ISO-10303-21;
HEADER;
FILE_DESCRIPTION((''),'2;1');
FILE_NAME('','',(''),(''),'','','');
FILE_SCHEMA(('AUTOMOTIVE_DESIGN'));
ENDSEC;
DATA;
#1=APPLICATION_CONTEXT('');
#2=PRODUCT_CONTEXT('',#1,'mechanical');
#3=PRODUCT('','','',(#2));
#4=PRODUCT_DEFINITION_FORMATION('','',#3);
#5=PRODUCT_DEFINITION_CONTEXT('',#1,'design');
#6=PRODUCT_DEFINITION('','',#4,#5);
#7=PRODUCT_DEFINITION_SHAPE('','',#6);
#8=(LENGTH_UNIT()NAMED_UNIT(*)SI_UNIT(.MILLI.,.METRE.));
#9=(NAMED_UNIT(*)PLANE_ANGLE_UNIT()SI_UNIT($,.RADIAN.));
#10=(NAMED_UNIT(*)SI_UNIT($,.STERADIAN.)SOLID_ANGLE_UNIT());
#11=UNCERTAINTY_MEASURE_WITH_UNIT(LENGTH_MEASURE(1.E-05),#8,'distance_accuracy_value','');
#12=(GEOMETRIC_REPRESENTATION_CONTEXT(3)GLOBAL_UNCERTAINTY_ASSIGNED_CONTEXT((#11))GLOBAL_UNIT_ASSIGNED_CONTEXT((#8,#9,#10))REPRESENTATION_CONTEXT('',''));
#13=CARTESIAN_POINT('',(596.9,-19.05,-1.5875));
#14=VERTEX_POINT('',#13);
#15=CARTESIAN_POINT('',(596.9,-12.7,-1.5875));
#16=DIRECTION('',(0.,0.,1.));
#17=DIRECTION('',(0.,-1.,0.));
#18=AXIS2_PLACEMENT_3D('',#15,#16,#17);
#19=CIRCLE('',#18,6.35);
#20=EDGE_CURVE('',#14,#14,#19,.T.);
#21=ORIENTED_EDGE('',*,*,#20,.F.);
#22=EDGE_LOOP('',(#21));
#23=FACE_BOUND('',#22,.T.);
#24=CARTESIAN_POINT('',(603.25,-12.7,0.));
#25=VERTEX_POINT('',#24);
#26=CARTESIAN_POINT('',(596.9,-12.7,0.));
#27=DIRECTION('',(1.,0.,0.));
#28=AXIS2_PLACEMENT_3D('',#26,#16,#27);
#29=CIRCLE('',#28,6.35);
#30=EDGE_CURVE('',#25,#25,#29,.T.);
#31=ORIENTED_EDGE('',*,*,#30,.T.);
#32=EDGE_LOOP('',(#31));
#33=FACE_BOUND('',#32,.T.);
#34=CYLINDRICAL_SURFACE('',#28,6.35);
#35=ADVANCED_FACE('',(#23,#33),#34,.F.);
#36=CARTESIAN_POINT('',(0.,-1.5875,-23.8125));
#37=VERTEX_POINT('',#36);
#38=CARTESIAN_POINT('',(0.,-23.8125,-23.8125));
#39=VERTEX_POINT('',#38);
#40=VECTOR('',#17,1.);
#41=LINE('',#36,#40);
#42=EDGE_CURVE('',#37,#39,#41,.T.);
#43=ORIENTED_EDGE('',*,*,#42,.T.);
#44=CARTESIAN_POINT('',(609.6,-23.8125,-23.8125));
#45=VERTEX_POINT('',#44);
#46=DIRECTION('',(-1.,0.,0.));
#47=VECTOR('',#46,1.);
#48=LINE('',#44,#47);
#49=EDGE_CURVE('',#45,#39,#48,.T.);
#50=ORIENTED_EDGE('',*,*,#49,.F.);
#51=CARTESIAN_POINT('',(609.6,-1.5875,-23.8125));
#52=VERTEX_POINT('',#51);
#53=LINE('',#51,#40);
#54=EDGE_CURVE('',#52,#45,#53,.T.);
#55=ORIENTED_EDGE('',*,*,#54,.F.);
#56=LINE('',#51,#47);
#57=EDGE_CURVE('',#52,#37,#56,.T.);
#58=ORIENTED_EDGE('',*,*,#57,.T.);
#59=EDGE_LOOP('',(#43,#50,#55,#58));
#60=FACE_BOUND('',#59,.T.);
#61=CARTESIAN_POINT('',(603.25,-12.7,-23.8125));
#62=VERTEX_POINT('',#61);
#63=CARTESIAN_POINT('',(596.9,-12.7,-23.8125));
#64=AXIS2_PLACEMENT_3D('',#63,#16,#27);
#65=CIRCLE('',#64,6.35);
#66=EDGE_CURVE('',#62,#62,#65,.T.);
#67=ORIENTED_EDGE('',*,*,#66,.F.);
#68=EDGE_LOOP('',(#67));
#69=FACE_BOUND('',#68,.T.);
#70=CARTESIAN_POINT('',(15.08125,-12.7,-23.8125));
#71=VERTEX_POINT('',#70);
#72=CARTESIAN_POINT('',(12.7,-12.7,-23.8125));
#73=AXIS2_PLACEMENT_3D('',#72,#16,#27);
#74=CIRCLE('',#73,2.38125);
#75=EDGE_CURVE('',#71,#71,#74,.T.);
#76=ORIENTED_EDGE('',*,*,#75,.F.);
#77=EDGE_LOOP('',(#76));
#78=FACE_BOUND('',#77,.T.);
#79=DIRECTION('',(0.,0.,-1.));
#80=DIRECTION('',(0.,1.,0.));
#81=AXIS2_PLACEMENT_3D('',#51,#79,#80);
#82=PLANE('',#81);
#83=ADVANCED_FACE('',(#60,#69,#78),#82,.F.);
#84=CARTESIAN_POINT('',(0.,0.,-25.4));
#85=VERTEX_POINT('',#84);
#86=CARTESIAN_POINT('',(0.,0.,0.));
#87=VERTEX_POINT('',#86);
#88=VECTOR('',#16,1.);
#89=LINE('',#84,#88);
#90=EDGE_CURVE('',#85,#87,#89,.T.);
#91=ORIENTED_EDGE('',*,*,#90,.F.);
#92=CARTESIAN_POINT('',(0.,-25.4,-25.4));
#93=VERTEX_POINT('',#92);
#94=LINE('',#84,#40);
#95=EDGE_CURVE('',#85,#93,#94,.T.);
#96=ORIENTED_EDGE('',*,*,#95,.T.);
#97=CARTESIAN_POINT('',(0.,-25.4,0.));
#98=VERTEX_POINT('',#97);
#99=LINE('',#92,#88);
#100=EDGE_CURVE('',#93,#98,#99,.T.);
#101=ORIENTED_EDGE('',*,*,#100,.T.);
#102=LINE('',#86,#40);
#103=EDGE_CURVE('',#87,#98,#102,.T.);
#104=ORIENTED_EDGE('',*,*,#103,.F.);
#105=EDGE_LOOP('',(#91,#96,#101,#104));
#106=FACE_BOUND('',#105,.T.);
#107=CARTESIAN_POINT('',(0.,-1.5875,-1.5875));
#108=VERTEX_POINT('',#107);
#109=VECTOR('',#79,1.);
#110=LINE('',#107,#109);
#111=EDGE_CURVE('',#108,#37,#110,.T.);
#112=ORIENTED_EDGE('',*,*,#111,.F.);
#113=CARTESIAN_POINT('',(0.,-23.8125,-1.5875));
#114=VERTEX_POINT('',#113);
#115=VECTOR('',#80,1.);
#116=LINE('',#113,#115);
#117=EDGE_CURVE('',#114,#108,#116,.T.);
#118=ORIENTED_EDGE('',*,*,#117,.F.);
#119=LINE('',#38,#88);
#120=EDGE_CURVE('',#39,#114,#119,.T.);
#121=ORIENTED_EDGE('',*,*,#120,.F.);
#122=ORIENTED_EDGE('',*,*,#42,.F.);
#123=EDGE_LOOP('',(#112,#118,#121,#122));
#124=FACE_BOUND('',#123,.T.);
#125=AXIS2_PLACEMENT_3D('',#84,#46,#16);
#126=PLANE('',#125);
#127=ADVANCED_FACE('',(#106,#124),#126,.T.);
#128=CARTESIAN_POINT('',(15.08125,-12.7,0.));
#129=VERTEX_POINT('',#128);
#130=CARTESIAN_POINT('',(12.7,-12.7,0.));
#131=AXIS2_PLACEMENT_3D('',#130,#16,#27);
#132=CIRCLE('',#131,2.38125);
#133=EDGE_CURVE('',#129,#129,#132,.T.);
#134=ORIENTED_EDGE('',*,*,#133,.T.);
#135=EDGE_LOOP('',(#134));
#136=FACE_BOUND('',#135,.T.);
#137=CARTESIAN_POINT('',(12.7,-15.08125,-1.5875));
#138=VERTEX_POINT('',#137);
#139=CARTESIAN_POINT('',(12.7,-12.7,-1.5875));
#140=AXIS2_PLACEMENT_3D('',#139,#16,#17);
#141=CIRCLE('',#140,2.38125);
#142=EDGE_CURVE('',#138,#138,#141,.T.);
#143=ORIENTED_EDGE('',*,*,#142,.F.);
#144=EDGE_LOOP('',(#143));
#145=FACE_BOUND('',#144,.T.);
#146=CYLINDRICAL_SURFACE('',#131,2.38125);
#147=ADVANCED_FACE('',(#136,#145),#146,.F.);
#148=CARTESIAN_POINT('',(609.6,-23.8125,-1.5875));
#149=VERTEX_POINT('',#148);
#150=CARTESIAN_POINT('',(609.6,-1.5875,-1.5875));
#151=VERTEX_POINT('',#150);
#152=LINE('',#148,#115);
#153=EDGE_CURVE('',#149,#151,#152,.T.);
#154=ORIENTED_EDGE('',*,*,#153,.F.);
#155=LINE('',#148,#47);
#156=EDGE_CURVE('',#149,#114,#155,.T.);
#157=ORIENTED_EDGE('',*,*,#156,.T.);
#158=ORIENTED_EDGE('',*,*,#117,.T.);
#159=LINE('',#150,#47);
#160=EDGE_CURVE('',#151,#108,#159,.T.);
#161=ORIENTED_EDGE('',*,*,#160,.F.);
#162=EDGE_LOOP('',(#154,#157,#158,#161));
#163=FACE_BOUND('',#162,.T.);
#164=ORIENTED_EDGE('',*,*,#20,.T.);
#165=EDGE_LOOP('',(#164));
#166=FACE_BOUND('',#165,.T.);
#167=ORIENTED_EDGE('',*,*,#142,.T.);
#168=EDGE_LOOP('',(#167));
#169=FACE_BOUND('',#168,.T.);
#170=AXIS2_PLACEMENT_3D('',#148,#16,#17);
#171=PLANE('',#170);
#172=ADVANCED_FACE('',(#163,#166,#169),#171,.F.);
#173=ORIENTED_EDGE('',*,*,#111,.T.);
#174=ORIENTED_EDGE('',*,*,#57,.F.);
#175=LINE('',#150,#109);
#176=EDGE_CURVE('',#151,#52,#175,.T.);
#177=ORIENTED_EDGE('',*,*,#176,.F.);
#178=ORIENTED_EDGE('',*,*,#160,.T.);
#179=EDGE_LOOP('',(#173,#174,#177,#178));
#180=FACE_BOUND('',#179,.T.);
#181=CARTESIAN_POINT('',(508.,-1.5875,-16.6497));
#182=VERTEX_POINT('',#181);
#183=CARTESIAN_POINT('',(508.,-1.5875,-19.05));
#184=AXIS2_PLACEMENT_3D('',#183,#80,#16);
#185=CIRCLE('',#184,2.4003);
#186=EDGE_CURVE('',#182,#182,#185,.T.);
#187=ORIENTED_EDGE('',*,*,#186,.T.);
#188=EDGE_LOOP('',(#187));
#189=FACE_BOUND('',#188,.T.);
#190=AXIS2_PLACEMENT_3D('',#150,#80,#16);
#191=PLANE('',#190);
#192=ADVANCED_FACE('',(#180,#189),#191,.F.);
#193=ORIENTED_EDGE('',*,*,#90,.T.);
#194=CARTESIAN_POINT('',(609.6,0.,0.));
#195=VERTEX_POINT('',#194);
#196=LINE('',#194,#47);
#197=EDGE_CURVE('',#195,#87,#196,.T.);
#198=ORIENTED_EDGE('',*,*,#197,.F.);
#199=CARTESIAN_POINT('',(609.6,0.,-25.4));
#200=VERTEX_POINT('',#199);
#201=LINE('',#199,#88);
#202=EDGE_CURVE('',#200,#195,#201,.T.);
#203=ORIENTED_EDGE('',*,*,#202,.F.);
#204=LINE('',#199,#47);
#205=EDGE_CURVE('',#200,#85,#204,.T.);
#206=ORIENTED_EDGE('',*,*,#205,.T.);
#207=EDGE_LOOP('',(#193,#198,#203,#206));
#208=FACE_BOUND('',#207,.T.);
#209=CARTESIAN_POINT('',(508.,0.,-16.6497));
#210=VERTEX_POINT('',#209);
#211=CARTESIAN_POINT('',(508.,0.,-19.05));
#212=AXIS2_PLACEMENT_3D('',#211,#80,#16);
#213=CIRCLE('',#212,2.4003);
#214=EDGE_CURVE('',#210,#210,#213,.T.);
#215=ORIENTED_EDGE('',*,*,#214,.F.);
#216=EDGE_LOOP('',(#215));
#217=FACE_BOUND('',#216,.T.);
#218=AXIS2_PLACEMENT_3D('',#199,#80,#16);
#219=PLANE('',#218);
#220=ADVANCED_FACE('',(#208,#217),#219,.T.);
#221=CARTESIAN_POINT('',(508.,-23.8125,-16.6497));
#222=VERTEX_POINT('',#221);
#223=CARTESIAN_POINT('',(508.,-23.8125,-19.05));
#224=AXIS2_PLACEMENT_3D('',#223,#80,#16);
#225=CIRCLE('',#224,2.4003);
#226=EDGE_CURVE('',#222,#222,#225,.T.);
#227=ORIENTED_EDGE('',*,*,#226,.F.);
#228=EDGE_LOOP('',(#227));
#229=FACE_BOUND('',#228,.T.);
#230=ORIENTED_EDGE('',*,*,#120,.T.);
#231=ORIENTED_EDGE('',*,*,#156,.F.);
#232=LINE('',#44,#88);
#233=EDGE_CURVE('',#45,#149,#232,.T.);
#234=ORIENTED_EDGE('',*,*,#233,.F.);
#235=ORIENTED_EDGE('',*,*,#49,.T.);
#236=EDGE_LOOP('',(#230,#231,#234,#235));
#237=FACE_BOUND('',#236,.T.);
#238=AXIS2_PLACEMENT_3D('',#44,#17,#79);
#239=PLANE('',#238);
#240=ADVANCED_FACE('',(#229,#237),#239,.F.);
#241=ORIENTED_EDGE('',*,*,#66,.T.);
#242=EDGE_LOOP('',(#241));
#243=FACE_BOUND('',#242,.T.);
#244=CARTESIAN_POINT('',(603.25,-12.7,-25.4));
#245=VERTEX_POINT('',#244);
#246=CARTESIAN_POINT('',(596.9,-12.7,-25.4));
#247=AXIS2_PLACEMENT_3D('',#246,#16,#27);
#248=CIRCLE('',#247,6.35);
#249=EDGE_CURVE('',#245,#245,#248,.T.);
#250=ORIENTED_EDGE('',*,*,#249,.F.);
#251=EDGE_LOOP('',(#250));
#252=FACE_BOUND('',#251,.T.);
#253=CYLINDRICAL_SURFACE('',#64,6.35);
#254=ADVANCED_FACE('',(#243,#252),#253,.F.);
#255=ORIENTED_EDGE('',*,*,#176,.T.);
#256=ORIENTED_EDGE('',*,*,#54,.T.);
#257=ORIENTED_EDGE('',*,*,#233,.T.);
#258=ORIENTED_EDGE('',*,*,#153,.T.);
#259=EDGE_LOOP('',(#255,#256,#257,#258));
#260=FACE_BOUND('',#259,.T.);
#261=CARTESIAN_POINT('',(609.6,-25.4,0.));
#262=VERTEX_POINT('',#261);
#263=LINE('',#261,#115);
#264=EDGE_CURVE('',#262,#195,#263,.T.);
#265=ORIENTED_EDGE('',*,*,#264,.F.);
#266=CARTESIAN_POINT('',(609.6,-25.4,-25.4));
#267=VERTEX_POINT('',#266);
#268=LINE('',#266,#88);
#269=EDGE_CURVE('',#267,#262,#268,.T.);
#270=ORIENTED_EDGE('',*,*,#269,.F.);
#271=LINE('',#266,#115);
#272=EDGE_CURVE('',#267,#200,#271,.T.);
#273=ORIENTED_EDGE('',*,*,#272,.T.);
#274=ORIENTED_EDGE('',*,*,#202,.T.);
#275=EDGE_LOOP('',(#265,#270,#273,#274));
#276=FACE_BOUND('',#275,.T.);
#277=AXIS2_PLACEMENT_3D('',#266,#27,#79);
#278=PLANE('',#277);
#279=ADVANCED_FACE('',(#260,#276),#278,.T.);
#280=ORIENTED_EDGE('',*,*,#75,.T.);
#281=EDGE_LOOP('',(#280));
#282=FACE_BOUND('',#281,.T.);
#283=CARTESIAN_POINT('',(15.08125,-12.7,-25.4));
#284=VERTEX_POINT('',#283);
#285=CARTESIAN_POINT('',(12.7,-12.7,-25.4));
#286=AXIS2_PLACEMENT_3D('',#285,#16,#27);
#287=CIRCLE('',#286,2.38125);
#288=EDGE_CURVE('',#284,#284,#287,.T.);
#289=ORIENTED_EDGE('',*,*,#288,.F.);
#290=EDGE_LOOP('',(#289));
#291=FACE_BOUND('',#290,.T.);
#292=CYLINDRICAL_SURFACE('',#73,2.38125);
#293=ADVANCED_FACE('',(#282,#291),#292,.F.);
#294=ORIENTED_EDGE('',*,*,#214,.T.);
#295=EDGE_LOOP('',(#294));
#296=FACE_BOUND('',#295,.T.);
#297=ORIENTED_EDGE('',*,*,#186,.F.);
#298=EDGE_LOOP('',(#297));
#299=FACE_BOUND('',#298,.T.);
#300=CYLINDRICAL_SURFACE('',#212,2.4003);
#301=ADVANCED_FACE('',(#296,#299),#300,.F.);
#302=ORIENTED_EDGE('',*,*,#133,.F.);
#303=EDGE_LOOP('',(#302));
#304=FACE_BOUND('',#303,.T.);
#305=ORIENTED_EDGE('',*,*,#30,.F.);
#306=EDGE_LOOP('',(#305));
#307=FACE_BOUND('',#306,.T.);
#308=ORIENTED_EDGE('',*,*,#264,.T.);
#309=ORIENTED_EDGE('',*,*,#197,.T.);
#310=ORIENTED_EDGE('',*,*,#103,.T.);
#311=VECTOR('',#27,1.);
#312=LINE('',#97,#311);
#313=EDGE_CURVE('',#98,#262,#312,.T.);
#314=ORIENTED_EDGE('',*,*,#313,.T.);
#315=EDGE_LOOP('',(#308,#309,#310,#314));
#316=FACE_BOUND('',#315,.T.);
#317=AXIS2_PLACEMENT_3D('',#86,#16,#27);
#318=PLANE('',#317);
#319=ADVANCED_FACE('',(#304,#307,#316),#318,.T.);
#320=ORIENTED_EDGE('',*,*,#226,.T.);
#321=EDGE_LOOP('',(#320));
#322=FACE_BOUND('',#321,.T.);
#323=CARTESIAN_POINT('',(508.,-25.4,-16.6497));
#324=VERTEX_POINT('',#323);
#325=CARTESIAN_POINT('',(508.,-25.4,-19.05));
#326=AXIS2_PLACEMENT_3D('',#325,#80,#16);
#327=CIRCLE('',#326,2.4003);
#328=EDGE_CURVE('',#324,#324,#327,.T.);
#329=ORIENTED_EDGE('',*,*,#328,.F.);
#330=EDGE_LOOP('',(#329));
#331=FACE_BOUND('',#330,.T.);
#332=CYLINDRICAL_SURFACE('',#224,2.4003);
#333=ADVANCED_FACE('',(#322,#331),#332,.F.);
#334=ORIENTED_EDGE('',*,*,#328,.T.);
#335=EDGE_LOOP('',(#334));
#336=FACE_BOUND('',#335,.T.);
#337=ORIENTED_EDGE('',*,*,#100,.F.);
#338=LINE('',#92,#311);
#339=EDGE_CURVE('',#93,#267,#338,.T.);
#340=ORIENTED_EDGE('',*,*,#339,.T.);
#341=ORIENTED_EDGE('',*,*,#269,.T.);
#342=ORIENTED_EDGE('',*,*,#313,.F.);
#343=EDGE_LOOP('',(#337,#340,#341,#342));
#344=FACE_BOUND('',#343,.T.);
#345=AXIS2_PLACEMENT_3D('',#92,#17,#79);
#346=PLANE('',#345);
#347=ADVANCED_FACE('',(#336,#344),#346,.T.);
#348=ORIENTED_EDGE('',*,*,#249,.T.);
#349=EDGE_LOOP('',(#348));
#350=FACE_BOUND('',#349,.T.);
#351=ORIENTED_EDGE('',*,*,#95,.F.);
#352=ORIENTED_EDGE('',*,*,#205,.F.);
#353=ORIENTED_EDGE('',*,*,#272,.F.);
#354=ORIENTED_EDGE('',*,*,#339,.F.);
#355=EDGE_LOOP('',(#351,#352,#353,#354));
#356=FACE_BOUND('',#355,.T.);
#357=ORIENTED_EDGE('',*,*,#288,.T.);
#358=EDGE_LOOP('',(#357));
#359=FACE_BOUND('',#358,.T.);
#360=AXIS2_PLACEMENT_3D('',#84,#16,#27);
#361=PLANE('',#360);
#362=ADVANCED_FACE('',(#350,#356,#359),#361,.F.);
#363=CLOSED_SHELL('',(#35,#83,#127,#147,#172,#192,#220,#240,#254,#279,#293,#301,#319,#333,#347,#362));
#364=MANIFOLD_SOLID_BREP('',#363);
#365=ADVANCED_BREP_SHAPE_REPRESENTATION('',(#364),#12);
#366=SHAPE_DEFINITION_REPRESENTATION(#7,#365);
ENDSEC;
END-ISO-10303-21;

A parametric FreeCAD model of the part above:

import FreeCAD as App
import Part
import Sketcher

V = App.Vector
Q = App.Units.Quantity

doc = App.newDocument("Part")
body = doc.addObject("PartDesign::Body", "Body")

# Sketch on XY plane
sketch1 = body.newObject("Sketcher::SketchObject", "Sketch")
sketch1.AttachmentSupport = (doc.getObject("XY_Plane"), [""])
sketch1.MapMode = "FlatFace"
sketch1.addGeometry(Part.LineSegment(V(0, 0, 0), V(0, -25.4, 0)), False)
sketch1.addGeometry(Part.LineSegment(V(0, -25.4, 0), V(609.6, -25.4, 0)), False)
sketch1.addGeometry(Part.LineSegment(V(609.6, -25.4, 0), V(609.6, 0, 0)), False)
sketch1.addGeometry(Part.LineSegment(V(609.6, 0, 0), V(0, 0, 0)), False)
sketch1.addConstraint(Sketcher.Constraint("Coincident", 0, 2, 1, 1))
sketch1.addConstraint(Sketcher.Constraint("Coincident", 1, 2, 2, 1))
sketch1.addConstraint(Sketcher.Constraint("Coincident", 2, 2, 3, 1))
sketch1.addConstraint(Sketcher.Constraint("Coincident", 3, 2, 0, 1))
sketch1.addConstraint(Sketcher.Constraint("Vertical", 0))
sketch1.addConstraint(Sketcher.Constraint("Horizontal", 1))
sketch1.addConstraint(Sketcher.Constraint("Vertical", 2))
sketch1.addConstraint(Sketcher.Constraint("Horizontal", 3))
sketch1.addConstraint(Sketcher.Constraint("Coincident", 3, 2, -1, 1))
sketch1.addConstraint(Sketcher.Constraint("DistanceX", 1, 1, 1, 2, Q("24 in")))
sketch1.addConstraint(Sketcher.Constraint("DistanceY", 0, 2, 0, 1, Q("1 in")))
pad1 = body.newObject("PartDesign::Pad", "Pad")
pad1.Profile = sketch1
pad1.Length = Q("1 in")
pad1.Reversed = True

# Sketch on YZ plane
sketch2 = body.newObject("Sketcher::SketchObject", "Sketch001")
sketch2.AttachmentSupport = (doc.getObject("YZ_Plane"), [""])
sketch2.MapMode = "FlatFace"
sketch2.addGeometry(Part.LineSegment(V(-1.5875, -23.8125, 0), V(-23.8125, -23.8125, 0)), False)
sketch2.addGeometry(Part.LineSegment(V(-23.8125, -23.8125, 0), V(-23.8125, -1.5875, 0)), False)
sketch2.addGeometry(Part.LineSegment(V(-23.8125, -1.5875, 0), V(-1.5875, -1.5875, 0)), False)
sketch2.addGeometry(Part.LineSegment(V(-1.5875, -1.5875, 0), V(-1.5875, -23.8125, 0)), False)
sketch2.addConstraint(Sketcher.Constraint("Coincident", 0, 2, 1, 1))
sketch2.addConstraint(Sketcher.Constraint("Coincident", 1, 2, 2, 1))
sketch2.addConstraint(Sketcher.Constraint("Coincident", 2, 2, 3, 1))
sketch2.addConstraint(Sketcher.Constraint("Coincident", 3, 2, 0, 1))
sketch2.addConstraint(Sketcher.Constraint("Horizontal", 0))
sketch2.addConstraint(Sketcher.Constraint("Vertical", 1))
sketch2.addConstraint(Sketcher.Constraint("Horizontal", 2))
sketch2.addConstraint(Sketcher.Constraint("Vertical", 3))
sketch2.addConstraint(Sketcher.Constraint("Equal", 2, 1))
sketch2.addConstraint(Sketcher.Constraint("DistanceX", 0, 2, 0, 1, Q("0.875 in")))
sketch2.addConstraint(Sketcher.Constraint("DistanceX", 0, 2, -1, 1, Q("0.9375 in")))
sketch2.addConstraint(Sketcher.Constraint("DistanceY", 0, 2, -1, 1, Q("0.9375 in")))
pocket1 = body.newObject("PartDesign::Pocket", "Pocket")
pocket1.Profile = sketch2
pocket1.Type = "ThroughAll"
pocket1.Reversed = True

# Sketch on XZ plane
sketch3 = body.newObject("Sketcher::SketchObject", "Sketch002")
sketch3.AttachmentSupport = (doc.getObject("XZ_Plane"), [""])
sketch3.MapMode = "FlatFace"
sketch3.AttachmentOffset = App.Placement(V(0, 0, 0.9375 * 25.4), App.Rotation())
sketch3.addGeometry(Part.Circle(V(508, -19.05, 0), V(0, 0, 1), 2.4003), False)
sketch3.addConstraint(Sketcher.Constraint("Diameter", 0, Q("0.189 in")))
sketch3.addConstraint(Sketcher.Constraint("DistanceX", -1, 1, 0, 3, Q("20 in")))
sketch3.addConstraint(Sketcher.Constraint("DistanceY", 0, 3, -1, 1, Q("0.75 in")))
doc.recompute()
hole = body.newObject("PartDesign::Hole", "Hole")
hole.Profile = sketch3
hole.ThreadType = "None"
hole.Diameter = Q("0.189 in")
hole.DepthType = "Dimension"
hole.Depth = Q("0.0625 in")
hole.DrillPoint = "Flat"
hole.Reversed = True

# Sketch on XY plane
sketch4 = body.newObject("Sketcher::SketchObject", "Sketch003")
sketch4.AttachmentSupport = (doc.getObject("XY_Plane"), [""])
sketch4.MapMode = "FlatFace"
sketch4.AttachmentOffset = App.Placement(V(0, 0, -0.9375 * 25.4), App.Rotation())
sketch4.addGeometry(Part.Circle(V(12.7, -12.7, 0), V(0, 0, 1), 2.38125), False)
sketch4.addConstraint(Sketcher.Constraint("Diameter", 0, Q("0.1875 in")))
sketch4.addConstraint(Sketcher.Constraint("DistanceX", -1, 1, 0, 3, Q("0.5 in")))
sketch4.addConstraint(Sketcher.Constraint("DistanceY", 0, 3, -1, 1, Q("0.5 in")))
doc.recompute()
hole2 = body.newObject("PartDesign::Hole", "Hole001")
hole2.Profile = sketch4
hole2.ThreadType = "None"
hole2.Diameter = Q("0.1875 in")
hole2.DepthType = "Dimension"
hole2.Depth = Q("0.0625 in")
hole2.DrillPoint = "Flat"

# Sketch on XY plane
sketch5 = body.newObject("Sketcher::SketchObject", "Sketch004")
sketch5.AttachmentSupport = (doc.getObject("XY_Plane"), [""])
sketch5.MapMode = "FlatFace"
sketch5.AttachmentOffset = App.Placement(V(0, 0, -0.9375 * 25.4), App.Rotation())
sketch5.addGeometry(Part.Circle(V(596.9, -12.7, 0), V(0, 0, 1), 6.35), False)
sketch5.addConstraint(Sketcher.Constraint("Diameter", 0, Q("0.5 in")))
sketch5.addConstraint(Sketcher.Constraint("DistanceX", -1, 1, 0, 3, Q("23.5 in")))
sketch5.addConstraint(Sketcher.Constraint("DistanceY", 0, 3, -1, 1, Q("0.5 in")))
doc.recompute()
hole3 = body.newObject("PartDesign::Hole", "Hole002")
hole3.Profile = sketch5
hole3.ThreadType = "None"
hole3.Diameter = Q("0.5 in")
hole3.DepthType = "Dimension"
hole3.Depth = Q("0.0625 in")
hole3.DrillPoint = "Flat"

# Sketch on XY plane
sketch6 = body.newObject("Sketcher::SketchObject", "Sketch005")
sketch6.AttachmentSupport = (doc.getObject("XY_Plane"), [""])
sketch6.MapMode = "FlatFace"
sketch6.addGeometry(Part.Circle(V(12.7, -12.7, 0), V(0, 0, 1), 2.38125), False)
sketch6.addConstraint(Sketcher.Constraint("Diameter", 0, Q("0.1875 in")))
sketch6.addConstraint(Sketcher.Constraint("DistanceX", -1, 1, 0, 3, Q("0.5 in")))
sketch6.addConstraint(Sketcher.Constraint("DistanceY", 0, 3, -1, 1, Q("0.5 in")))
doc.recompute()
hole4 = body.newObject("PartDesign::Hole", "Hole003")
hole4.Profile = sketch6
hole4.ThreadType = "None"
hole4.Diameter = Q("0.1875 in")
hole4.DepthType = "Dimension"
hole4.Depth = Q("1 in")
hole4.DrillPoint = "Flat"

# Sketch on XY plane
sketch7 = body.newObject("Sketcher::SketchObject", "Sketch006")
sketch7.AttachmentSupport = (doc.getObject("XY_Plane"), [""])
sketch7.MapMode = "FlatFace"
sketch7.addGeometry(Part.Circle(V(596.9, -12.7, 0), V(0, 0, 1), 6.35), False)
sketch7.addConstraint(Sketcher.Constraint("Diameter", 0, Q("0.5 in")))
sketch7.addConstraint(Sketcher.Constraint("DistanceX", -1, 1, 0, 3, Q("23.5 in")))
sketch7.addConstraint(Sketcher.Constraint("DistanceY", 0, 3, -1, 1, Q("0.5 in")))
doc.recompute()
hole5 = body.newObject("PartDesign::Hole", "Hole004")
hole5.Profile = sketch7
hole5.ThreadType = "None"
hole5.Diameter = Q("0.5 in")
hole5.DepthType = "Dimension"
hole5.Depth = Q("1 in")
hole5.DrillPoint = "Flat"

# Sketch on XZ plane
sketch8 = body.newObject("Sketcher::SketchObject", "Sketch007")
sketch8.AttachmentSupport = (doc.getObject("XZ_Plane"), [""])
sketch8.MapMode = "FlatFace"
sketch8.addGeometry(Part.Circle(V(508, -19.05, 0), V(0, 0, 1), 2.4003), False)
sketch8.addConstraint(Sketcher.Constraint("Diameter", 0, Q("0.189 in")))
sketch8.addConstraint(Sketcher.Constraint("DistanceX", -1, 1, 0, 3, Q("20 in")))
sketch8.addConstraint(Sketcher.Constraint("DistanceY", 0, 3, -1, 1, Q("0.75 in")))
doc.recompute()
hole6 = body.newObject("PartDesign::Hole", "Hole005")
hole6.Profile = sketch8
hole6.ThreadType = "None"
hole6.Diameter = Q("0.189 in")
hole6.DepthType = "Dimension"
hole6.Depth = Q("1 in")
hole6.DrillPoint = "Flat"
hole6.Reversed = True

doc.recompute()
